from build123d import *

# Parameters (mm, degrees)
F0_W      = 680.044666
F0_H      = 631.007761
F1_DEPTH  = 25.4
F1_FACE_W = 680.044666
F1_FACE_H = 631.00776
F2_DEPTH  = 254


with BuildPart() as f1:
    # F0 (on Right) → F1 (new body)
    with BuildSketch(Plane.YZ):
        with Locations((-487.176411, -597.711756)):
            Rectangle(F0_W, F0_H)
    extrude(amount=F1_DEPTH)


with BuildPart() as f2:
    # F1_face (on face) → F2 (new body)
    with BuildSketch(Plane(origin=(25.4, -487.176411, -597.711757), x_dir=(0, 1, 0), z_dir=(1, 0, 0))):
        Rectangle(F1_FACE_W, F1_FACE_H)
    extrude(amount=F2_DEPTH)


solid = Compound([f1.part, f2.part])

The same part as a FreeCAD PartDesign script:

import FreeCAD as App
import Part
import Sketcher

V = App.Vector
Q = App.Units.Quantity


def add_polygon(sketch, points):
    """Adds a closed chain of lines whose ends are joined by coincident constraints."""
    first, n = sketch.GeometryCount, len(points)
    for a, b in zip(points, points[1:] + points[:1]):
        sketch.addGeometry(Part.LineSegment(App.Vector(*a, 0), App.Vector(*b, 0)), False)
    for i in range(n):
        sketch.addConstraint(Sketcher.Constraint("Coincident", first + i, 2, first + (i + 1) % n, 1))

doc = App.newDocument("Part")
body = doc.addObject("PartDesign::Body", "Body")

# Sketch on YZ plane
sketch1 = doc.addObject("Sketcher::SketchObject", "Sketch")
body.addObject(sketch1)
sketch1.AttachmentSupport = (doc.YZ_Plane, [""])
sketch1.MapMode = "FlatFace"
add_polygon(sketch1, [(-827.198744, -282.207876), (-827.198744, -913.215636), (-147.154078, -913.215636), (-147.154078, -282.207876)])  # lines 0-3
sketch1.addConstraint([
    Sketcher.Constraint("Vertical", 0),
    Sketcher.Constraint("Horizontal", 1),
    Sketcher.Constraint("Vertical", 2),
    Sketcher.Constraint("Horizontal", 3),
    Sketcher.Constraint("DistanceY", 0, 2, 0, 1, Q("631.007761 mm")),
    Sketcher.Constraint("DistanceX", 1, 1, 1, 2, Q("680.044666 mm")),
    Sketcher.Constraint("DistanceX", 1, 2, -1, 1, Q("147.154078 mm")),
    Sketcher.Constraint("DistanceY", 0, 2, -1, 1, Q("913.215636 mm")),
])
pad1 = doc.addObject("PartDesign::Pad", "Pad")
body.addObject(pad1)
pad1.Profile = sketch1
pad1.Length = Q("1 in")
body2 = doc.addObject("PartDesign::Body", "Body001")

# Sketch on YZ plane
sketch2 = doc.addObject("Sketcher::SketchObject", "Sketch001")
body2.addObject(sketch2)
sketch2.AttachmentSupport = (doc.getObject("YZ_Plane001"), [""])
sketch2.MapMode = "FlatFace"
sketch2.AttachmentOffset = App.Placement(V(0, 0, 1 * 25.4), App.Rotation())
add_polygon(sketch2, [(-827.198744, -282.207877), (-827.198744, -913.215637), (-147.154078, -913.215637), (-147.154078, -282.207877)])  # lines 0-3
sketch2.addConstraint([
    Sketcher.Constraint("Vertical", 0),
    Sketcher.Constraint("Horizontal", 1),
    Sketcher.Constraint("Vertical", 2),
    Sketcher.Constraint("Horizontal", 3),
    Sketcher.Constraint("DistanceY", 0, 2, 0, 1, Q("631.00776 mm")),
    Sketcher.Constraint("DistanceX", 1, 1, 1, 2, Q("680.044666 mm")),
    Sketcher.Constraint("DistanceX", 1, 2, -1, 1, Q("147.154078 mm")),
    Sketcher.Constraint("DistanceY", 0, 2, -1, 1, Q("913.215637 mm")),
])
pad2 = doc.addObject("PartDesign::Pad", "Pad001")
body2.addObject(pad2)
pad2.Profile = sketch2
pad2.Length = Q("10 in")

doc.recompute()
